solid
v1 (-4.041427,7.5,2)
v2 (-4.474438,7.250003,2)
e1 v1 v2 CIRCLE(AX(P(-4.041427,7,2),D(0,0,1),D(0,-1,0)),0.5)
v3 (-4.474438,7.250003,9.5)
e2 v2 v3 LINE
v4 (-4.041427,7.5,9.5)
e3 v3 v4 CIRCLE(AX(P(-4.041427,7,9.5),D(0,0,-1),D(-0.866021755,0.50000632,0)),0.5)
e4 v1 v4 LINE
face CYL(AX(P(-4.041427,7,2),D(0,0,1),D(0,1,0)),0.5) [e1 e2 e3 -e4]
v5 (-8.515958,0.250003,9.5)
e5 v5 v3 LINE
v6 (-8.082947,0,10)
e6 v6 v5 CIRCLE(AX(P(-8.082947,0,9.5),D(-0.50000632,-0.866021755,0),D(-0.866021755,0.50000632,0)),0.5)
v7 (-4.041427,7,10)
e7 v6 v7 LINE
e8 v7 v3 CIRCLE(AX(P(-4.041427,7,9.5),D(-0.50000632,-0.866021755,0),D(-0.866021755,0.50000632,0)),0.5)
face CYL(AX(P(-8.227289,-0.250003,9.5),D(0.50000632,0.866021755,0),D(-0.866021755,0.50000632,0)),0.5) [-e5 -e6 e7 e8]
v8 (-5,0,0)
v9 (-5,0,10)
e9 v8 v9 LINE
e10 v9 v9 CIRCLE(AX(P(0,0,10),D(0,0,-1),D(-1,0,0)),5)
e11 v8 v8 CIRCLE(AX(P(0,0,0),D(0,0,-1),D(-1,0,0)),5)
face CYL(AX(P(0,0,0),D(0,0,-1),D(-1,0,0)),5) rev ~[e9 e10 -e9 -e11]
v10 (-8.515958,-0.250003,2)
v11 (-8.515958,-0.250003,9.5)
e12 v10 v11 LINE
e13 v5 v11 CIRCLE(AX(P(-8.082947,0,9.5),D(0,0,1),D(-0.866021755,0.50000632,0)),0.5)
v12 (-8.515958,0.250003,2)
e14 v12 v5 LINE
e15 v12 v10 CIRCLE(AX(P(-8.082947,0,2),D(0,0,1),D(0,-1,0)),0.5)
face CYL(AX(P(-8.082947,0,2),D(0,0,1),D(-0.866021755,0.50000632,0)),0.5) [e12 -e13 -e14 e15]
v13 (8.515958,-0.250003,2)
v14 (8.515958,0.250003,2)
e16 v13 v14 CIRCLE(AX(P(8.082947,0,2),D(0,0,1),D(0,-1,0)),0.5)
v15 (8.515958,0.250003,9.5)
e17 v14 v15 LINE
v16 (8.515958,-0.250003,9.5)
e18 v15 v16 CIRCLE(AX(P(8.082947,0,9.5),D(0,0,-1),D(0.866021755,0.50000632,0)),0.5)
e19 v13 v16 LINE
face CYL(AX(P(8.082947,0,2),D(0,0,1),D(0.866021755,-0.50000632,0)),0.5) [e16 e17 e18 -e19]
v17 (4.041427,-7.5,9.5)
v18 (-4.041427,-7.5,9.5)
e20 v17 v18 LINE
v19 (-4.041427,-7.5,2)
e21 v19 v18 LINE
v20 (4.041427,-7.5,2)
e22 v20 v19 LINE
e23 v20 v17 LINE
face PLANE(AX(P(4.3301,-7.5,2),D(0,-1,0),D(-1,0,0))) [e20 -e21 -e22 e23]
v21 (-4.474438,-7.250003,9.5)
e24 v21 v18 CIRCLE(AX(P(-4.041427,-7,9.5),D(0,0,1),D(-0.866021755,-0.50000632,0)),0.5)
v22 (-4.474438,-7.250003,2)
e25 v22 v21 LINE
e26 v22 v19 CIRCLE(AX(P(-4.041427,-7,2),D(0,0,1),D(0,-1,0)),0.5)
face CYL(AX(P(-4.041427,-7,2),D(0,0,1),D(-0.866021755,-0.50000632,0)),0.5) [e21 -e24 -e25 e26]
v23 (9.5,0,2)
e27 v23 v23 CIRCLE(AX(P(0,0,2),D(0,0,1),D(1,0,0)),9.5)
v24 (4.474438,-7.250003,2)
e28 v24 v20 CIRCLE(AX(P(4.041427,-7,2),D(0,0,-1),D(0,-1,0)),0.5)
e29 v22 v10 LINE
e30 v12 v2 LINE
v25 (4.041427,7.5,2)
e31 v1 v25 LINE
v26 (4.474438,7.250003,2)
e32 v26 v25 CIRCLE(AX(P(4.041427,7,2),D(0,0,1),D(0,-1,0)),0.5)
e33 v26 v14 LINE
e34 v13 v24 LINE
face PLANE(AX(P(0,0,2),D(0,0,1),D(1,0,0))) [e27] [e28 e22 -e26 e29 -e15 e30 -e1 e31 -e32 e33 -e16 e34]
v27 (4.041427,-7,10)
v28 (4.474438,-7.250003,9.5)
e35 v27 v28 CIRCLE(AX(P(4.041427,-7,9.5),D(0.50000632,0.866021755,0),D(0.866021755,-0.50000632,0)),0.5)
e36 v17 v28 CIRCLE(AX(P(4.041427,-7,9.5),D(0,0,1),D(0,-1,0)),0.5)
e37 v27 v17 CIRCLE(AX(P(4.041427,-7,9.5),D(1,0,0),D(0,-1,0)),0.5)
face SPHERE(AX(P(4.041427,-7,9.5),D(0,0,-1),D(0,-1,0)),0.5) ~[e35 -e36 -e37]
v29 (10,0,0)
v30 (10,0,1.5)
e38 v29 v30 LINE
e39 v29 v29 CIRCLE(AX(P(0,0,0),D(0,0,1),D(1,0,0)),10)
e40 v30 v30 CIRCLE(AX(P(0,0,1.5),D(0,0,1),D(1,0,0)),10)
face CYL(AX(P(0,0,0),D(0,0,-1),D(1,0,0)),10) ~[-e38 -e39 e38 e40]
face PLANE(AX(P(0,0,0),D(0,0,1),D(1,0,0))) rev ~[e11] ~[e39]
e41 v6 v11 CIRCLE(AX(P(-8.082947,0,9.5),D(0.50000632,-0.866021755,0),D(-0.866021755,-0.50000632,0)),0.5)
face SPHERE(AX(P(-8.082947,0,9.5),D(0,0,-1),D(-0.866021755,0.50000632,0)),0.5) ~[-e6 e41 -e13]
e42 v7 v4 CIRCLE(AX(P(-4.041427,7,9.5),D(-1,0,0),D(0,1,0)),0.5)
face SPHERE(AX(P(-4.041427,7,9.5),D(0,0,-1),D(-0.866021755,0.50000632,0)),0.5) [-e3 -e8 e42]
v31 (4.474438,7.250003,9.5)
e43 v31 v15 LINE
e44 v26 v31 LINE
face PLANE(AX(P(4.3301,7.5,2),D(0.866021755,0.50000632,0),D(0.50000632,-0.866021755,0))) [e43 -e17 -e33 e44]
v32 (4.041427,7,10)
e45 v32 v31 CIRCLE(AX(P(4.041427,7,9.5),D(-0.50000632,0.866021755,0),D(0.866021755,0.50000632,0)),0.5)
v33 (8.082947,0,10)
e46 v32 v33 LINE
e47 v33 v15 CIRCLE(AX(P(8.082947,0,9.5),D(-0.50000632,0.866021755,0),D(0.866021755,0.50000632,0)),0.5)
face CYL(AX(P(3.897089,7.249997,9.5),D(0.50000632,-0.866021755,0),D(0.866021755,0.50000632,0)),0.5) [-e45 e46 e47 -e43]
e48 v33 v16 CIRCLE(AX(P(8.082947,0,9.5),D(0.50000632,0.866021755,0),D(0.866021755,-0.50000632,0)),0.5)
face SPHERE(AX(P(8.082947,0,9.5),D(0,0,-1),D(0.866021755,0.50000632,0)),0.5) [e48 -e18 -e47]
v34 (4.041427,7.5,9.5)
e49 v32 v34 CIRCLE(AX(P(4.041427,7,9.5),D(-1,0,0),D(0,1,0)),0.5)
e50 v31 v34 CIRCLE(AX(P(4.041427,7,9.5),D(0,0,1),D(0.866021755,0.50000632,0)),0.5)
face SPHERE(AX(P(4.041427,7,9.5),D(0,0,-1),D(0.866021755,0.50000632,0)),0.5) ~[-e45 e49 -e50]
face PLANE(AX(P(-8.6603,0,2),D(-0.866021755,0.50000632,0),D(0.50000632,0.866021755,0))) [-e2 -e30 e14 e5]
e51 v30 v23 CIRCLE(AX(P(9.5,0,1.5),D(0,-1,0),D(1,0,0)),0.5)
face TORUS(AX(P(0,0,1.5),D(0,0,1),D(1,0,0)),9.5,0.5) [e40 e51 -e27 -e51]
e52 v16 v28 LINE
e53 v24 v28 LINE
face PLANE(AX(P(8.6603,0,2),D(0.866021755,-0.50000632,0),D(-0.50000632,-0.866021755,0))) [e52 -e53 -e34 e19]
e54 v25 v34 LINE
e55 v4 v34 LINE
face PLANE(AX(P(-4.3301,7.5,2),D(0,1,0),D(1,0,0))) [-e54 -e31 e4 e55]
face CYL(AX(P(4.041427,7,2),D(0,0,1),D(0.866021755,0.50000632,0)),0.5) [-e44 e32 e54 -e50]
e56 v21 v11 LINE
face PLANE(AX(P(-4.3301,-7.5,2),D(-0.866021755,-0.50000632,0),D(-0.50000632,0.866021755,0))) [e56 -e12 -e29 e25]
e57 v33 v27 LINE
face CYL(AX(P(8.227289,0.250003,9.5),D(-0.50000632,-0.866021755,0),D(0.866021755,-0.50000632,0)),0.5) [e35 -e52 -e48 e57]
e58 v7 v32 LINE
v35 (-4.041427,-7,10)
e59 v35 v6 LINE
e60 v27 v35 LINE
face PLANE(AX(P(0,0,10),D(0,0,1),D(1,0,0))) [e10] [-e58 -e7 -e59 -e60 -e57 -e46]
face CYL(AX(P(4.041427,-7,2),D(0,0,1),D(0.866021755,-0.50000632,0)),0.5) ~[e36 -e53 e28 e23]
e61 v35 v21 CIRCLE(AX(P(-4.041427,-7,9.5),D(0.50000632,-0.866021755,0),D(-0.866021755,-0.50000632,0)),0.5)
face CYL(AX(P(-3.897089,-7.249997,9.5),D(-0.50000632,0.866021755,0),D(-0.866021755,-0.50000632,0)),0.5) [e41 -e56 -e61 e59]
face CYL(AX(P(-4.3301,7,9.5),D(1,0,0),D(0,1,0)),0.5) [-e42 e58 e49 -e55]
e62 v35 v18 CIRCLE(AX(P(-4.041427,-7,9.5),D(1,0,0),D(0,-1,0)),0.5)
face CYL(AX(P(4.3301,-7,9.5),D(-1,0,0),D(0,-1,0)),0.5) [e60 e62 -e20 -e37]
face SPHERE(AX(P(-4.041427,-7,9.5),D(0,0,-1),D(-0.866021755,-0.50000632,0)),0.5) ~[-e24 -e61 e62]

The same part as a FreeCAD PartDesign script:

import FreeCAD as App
import Part
import Sketcher
from FreeCAD import Vector
Q = App.Units.Quantity


def edges_at(feature, points):
    """Names of the edges that pass closest to the given points."""
    edges = feature.Shape.Edges
    near = lambda p: min(range(len(edges)), key=lambda i: edges[i].distToShape(Part.Vertex(*p))[0])
    return sorted({f"Edge{near(p) + 1}" for p in points})


def add_polygon(sketch, points):
    """Adds a closed chain of lines whose ends are joined by coincident constraints."""
    first, n = sketch.GeometryCount, len(points)
    for a, b in zip(points, points[1:] + points[:1]):
        sketch.addGeometry(Part.LineSegment(App.Vector(*a, 0), App.Vector(*b, 0)), False)
    for i in range(n):
        sketch.addConstraint(Sketcher.Constraint("Coincident", first + i, 2, first + (i + 1) % n, 1))

doc = App.newDocument("Part")
body = doc.addObject("PartDesign::Body", "Body")

# Sketch on XY plane
sketch1 = doc.addObject("Sketcher::SketchObject", "Sketch")
body.addObject(sketch1)
sketch1.AttachmentSupport = (doc.XY_Plane, [""])
sketch1.MapMode = "FlatFace"
sketch1.addGeometry(Part.Circle(Vector(0, 0, 0), Vector(0, 0, 1), 10), False)
sketch1.addConstraint([
    Sketcher.Constraint("Coincident", 0, 3, -1, 1),
    Sketcher.Constraint("Diameter", 0, Q("20 mm")),
])
pad1 = doc.addObject("PartDesign::Pad", "Pad")
body.addObject(pad1)
pad1.Profile = sketch1
pad1.Length = 2

# Sketch on XY plane
sketch2 = doc.addObject("Sketcher::SketchObject", "Sketch001")
body.addObject(sketch2)
sketch2.AttachmentSupport = (doc.XY_Plane, [""])
sketch2.MapMode = "FlatFace"
sketch2.AttachmentOffset = App.Placement(Vector(0, 0, 2), App.Rotation())
add_polygon(sketch2, [(-4, -8), (4, -8), (9, 0), (4, 8), (-4, 8), (-9, 0)])  # lines 0-5
sketch2.addConstraint([
    Sketcher.Constraint("Horizontal", 0),
    Sketcher.Constraint("Horizontal", 3),
    Sketcher.Constraint("Symmetric", 0, 2, 3, 2, -1, 1),
    Sketcher.Constraint("Symmetric", 1, 2, 4, 2, -1, 1),
    Sketcher.Constraint("PointOnObject", 1, 2, -1),
    Sketcher.Constraint("Parallel", 2, 5),
    Sketcher.Constraint("Vertical", 0, 2, 2, 2),
    Sketcher.Constraint("DistanceY", 0, 2, 2, 2, Q("15 mm")),
    Sketcher.Constraint("Angle", 1, Q("59.9996 deg")),
    Sketcher.Constraint("DistanceX", -1, 1, 0, 2, Q("4.33 mm")),
])
pad2 = doc.addObject("PartDesign::Pad", "Pad001")
body.addObject(pad2)
pad2.Profile = sketch2
pad2.Length = 8
doc.recompute()

fillet = doc.addObject("PartDesign::Fillet", "Fillet")
body.addObject(fillet)
fillet.Base = (pad2, edges_at(pad2, [
    (-10, 0, 2),
    (0, 7.5, 10),
    (4.33, 7.5, 6),
    (-4.33, 7.5, 6),
    (-6.495, 3.75, 10),
    (6.495, 3.75, 10),
    (-6.495, -3.75, 10),
    (0, -7.5, 10),
    (6.495, -3.75, 10),
    (8.66, 0, 6),
    (4.33, -7.5, 6),
    (-4.33, -7.5, 6),
    (-8.66, 0, 6),
]))
fillet.Radius = 0.5

# Sketch on XY plane
sketch3 = doc.addObject("Sketcher::SketchObject", "Sketch002")
body.addObject(sketch3)
sketch3.AttachmentSupport = (doc.XY_Plane, [""])
sketch3.MapMode = "FlatFace"
sketch3.addGeometry(Part.Circle(Vector(0, 0, 0), Vector(0, 0, 1), 5), False)
sketch3.addConstraint([
    Sketcher.Constraint("Coincident", 0, 3, -1, 1),
    Sketcher.Constraint("Diameter", 0, Q("10 mm")),
])
pocket1 = doc.addObject("PartDesign::Pocket", "Pocket")
body.addObject(pocket1)
pocket1.Profile = sketch3
pocket1.Type = "ThroughAll"
pocket1.Reversed = True

doc.recompute()
